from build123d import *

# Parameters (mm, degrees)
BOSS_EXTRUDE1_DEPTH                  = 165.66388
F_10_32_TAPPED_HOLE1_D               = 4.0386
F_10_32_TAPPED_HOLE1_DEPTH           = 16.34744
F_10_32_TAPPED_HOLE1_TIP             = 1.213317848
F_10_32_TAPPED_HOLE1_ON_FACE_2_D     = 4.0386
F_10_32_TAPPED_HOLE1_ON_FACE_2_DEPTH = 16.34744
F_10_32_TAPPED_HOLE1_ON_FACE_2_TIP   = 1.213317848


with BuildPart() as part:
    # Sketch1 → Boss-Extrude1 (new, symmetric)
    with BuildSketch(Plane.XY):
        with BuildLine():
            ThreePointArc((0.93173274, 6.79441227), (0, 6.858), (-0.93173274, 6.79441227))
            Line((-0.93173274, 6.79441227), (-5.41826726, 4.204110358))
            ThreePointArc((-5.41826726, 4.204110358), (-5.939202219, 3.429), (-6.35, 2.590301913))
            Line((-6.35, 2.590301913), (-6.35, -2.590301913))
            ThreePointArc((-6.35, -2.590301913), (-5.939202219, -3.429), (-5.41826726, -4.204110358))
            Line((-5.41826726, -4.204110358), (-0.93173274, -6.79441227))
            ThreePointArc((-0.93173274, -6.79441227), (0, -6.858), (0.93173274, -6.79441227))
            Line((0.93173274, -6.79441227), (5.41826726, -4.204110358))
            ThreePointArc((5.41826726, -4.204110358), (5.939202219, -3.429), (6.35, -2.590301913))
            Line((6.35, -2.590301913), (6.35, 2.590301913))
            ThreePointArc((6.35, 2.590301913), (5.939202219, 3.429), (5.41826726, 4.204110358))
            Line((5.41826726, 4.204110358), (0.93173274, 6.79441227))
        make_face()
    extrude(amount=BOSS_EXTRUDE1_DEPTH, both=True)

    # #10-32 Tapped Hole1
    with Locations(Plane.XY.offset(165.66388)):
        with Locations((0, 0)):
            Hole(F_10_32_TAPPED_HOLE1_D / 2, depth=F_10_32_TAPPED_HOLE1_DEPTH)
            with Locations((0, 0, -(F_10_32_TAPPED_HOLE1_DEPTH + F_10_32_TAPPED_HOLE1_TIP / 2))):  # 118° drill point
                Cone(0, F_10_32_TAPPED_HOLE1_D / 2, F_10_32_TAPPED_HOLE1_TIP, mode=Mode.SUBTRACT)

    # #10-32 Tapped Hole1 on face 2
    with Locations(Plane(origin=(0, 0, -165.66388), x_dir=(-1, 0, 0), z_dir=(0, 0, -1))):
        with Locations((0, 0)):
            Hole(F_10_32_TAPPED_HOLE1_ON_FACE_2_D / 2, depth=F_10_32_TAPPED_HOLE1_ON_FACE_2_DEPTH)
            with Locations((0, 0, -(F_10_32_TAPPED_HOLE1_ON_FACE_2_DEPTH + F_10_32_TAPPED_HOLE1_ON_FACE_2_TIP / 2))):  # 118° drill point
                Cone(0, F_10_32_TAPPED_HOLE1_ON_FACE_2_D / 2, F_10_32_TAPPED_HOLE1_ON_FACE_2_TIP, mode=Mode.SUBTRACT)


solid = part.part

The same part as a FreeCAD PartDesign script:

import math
import FreeCAD as App
import Part
import Sketcher
Q = App.Units.Quantity

doc = App.newDocument("Part")
params = doc.addObject("Spreadsheet::Sheet", "Params")
for row, (alias, value) in enumerate([
    ("sketch1_radius", "0.27 in"),
    ("pad1_length", "13.0444 in"),
    ("sketch2_diameter", "0.159 in"),
    ("hole_diameter", "0.159 in"),
    ("hole_depth", "0.6436 in"),
    ("sketch3_diameter", "0.159 in"),
    ("hole2_diameter", "0.159 in"),
    ("hole2_depth", "0.6436 in"),
], start=1):
    params.set(f"A{row}", alias)
    params.set(f"B{row}", "=" + value)
    params.setAlias(f"B{row}", alias)

body = doc.addObject("PartDesign::Body", "Body")

# Sketch on XY plane
sketch1 = body.newObject("Sketcher::SketchObject", "Sketch")
sketch1.AttachmentSupport = (doc.getObject("XY_Plane"), [""])
sketch1.MapMode = "FlatFace"
sketch1.addGeometry([
    Part.ArcOfCircle(Part.Circle(App.Vector(0, 0, 0), App.Vector(0, 0, 1), 6.9), math.radians(82.19), math.radians(97.81)),  # 0
    Part.LineSegment(App.Vector(-0.9, 6.8, 0), App.Vector(-5.4, 4.2, 0)),  # 1
    Part.ArcOfCircle(Part.Circle(App.Vector(0, 0, 0), App.Vector(0, 0, 1), 6.9), math.radians(142.19), math.radians(157.81)),  # 2
    Part.LineSegment(App.Vector(-6.3, 2.6, 0), App.Vector(-6.3, -2.6, 0)),  # 3
    Part.ArcOfCircle(Part.Circle(App.Vector(0, 0, 0), App.Vector(0, 0, 1), 6.9), math.radians(-157.81), math.radians(-142.19)),  # 4
    Part.LineSegment(App.Vector(-5.4, -4.2, 0), App.Vector(-0.9, -6.8, 0)),  # 5
    Part.ArcOfCircle(Part.Circle(App.Vector(0, 0, 0), App.Vector(0, 0, 1), 6.9), math.radians(-97.81), math.radians(-82.19)),  # 6
    Part.LineSegment(App.Vector(0.9, -6.8, 0), App.Vector(5.4, -4.2, 0)),  # 7
    Part.ArcOfCircle(Part.Circle(App.Vector(0, 0, 0), App.Vector(0, 0, 1), 6.9), math.radians(-37.81), math.radians(-22.19)),  # 8
    Part.LineSegment(App.Vector(6.3, -2.6, 0), App.Vector(6.3, 2.6, 0)),  # 9
    Part.ArcOfCircle(Part.Circle(App.Vector(0, 0, 0), App.Vector(0, 0, 1), 6.9), math.radians(22.19), math.radians(37.81)),  # 10
    Part.LineSegment(App.Vector(5.4, 4.2, 0), App.Vector(0.9, 6.8, 0)),  # 11
], False)
sketch1.addConstraint([
    Sketcher.Constraint("Coincident", 0, 2, 1, 1),
    Sketcher.Constraint("Coincident", 1, 2, 2, 1),
    Sketcher.Constraint("Coincident", 2, 2, 3, 1),
    Sketcher.Constraint("Coincident", 3, 2, 4, 1),
    Sketcher.Constraint("Coincident", 4, 2, 5, 1),
    Sketcher.Constraint("Coincident", 5, 2, 6, 1),
    Sketcher.Constraint("Coincident", 6, 2, 7, 1),
    Sketcher.Constraint("Coincident", 7, 2, 8, 1),
    Sketcher.Constraint("Coincident", 8, 2, 9, 1),
    Sketcher.Constraint("Coincident", 9, 2, 10, 1),
    Sketcher.Constraint("Coincident", 10, 2, 11, 1),
    Sketcher.Constraint("Coincident", 11, 2, 0, 1),
    Sketcher.Constraint("Vertical", 3),
    Sketcher.Constraint("Vertical", 9),
    Sketcher.Constraint("Coincident", 0, 3, -1, 1),
    Sketcher.Constraint("Coincident", 2, 3, -1, 1),
    Sketcher.Constraint("Coincident", 4, 3, -1, 1),
    Sketcher.Constraint("Coincident", 6, 3, -1, 1),
    Sketcher.Constraint("Coincident", 8, 3, -1, 1),
    Sketcher.Constraint("Coincident", 10, 3, -1, 1),
    Sketcher.Constraint("Equal", 0, 2),
    Sketcher.Constraint("Equal", 2, 4),
    Sketcher.Constraint("Equal", 4, 6),
    Sketcher.Constraint("Equal", 6, 8),
    Sketcher.Constraint("Equal", 8, 10),
    Sketcher.Constraint("Parallel", 1, 7),
    Sketcher.Constraint("Parallel", 5, 11),
    Sketcher.Constraint("Horizontal", 5, 2, 6, 2),
    Sketcher.Constraint("Horizontal", 4, 2, 7, 2),
    Sketcher.Constraint("Horizontal", 3, 2, 8, 2),
    Sketcher.Constraint("Horizontal", 1, 2, 10, 2),
    Sketcher.Constraint("Vertical", 1, 2, 4, 2),
    Sketcher.Constraint("Radius", 0, Q("0.27 in")),
    Sketcher.Constraint("Angle", 1, Q("-150 deg")),
    Sketcher.Constraint("DistanceX", 2, 2, -1, 1, Q("0.25 in")),
    Sketcher.Constraint("DistanceX", 4, 2, 6, 2, Q("0.25 in")),
])
sketch1.setExpression("Constraints[32]", "Params.sketch1_radius")
pad1 = body.newObject("PartDesign::Pad", "Pad")
pad1.Profile = sketch1
pad1.setExpression("Length", "Params.pad1_length")
pad1.Midplane = True

# Sketch on XY plane
sketch2 = body.newObject("Sketcher::SketchObject", "Sketch001")
sketch2.AttachmentSupport = (doc.getObject("XY_Plane"), [""])
sketch2.MapMode = "FlatFace"
sketch2.AttachmentOffset = App.Placement(App.Vector(0, 0, 6.5222 * 25.4), App.Rotation())
sketch2.addGeometry(Part.Circle(App.Vector(0, 0, 0), App.Vector(0, 0, 1), 2), False)
sketch2.addConstraint([
    Sketcher.Constraint("Coincident", 0, 3, -1, 1),
    Sketcher.Constraint("Diameter", 0, Q("0.159 in")),
])
sketch2.setExpression("Constraints[1]", "Params.sketch2_diameter")
doc.recompute()
hole = body.newObject("PartDesign::Hole", "Hole")
hole.Profile = sketch2
hole.ThreadType = "None"
hole.setExpression("Diameter", "Params.hole_diameter")
hole.DepthType = "Dimension"
hole.setExpression("Depth", "Params.hole_depth")
hole.DrillPoint = "Angled"
hole.DrillPointAngle = 118

# Sketch on XY plane
sketch3 = body.newObject("Sketcher::SketchObject", "Sketch002")
sketch3.AttachmentSupport = (doc.getObject("XY_Plane"), [""])
sketch3.MapMode = "FlatFace"
sketch3.AttachmentOffset = App.Placement(App.Vector(0, 0, -6.5222 * 25.4), App.Rotation())
sketch3.addGeometry(Part.Circle(App.Vector(0, 0, 0), App.Vector(0, 0, 1), 2), False)
sketch3.addConstraint([
    Sketcher.Constraint("Coincident", 0, 3, -1, 1),
    Sketcher.Constraint("Diameter", 0, Q("0.159 in")),
])
sketch3.setExpression("Constraints[1]", "Params.sketch3_diameter")
doc.recompute()
hole2 = body.newObject("PartDesign::Hole", "Hole001")
hole2.Profile = sketch3
hole2.ThreadType = "None"
hole2.setExpression("Diameter", "Params.hole2_diameter")
hole2.DepthType = "Dimension"
hole2.setExpression("Depth", "Params.hole2_depth")
hole2.DrillPoint = "Angled"
hole2.DrillPointAngle = 118
hole2.Reversed = True

doc.recompute()
